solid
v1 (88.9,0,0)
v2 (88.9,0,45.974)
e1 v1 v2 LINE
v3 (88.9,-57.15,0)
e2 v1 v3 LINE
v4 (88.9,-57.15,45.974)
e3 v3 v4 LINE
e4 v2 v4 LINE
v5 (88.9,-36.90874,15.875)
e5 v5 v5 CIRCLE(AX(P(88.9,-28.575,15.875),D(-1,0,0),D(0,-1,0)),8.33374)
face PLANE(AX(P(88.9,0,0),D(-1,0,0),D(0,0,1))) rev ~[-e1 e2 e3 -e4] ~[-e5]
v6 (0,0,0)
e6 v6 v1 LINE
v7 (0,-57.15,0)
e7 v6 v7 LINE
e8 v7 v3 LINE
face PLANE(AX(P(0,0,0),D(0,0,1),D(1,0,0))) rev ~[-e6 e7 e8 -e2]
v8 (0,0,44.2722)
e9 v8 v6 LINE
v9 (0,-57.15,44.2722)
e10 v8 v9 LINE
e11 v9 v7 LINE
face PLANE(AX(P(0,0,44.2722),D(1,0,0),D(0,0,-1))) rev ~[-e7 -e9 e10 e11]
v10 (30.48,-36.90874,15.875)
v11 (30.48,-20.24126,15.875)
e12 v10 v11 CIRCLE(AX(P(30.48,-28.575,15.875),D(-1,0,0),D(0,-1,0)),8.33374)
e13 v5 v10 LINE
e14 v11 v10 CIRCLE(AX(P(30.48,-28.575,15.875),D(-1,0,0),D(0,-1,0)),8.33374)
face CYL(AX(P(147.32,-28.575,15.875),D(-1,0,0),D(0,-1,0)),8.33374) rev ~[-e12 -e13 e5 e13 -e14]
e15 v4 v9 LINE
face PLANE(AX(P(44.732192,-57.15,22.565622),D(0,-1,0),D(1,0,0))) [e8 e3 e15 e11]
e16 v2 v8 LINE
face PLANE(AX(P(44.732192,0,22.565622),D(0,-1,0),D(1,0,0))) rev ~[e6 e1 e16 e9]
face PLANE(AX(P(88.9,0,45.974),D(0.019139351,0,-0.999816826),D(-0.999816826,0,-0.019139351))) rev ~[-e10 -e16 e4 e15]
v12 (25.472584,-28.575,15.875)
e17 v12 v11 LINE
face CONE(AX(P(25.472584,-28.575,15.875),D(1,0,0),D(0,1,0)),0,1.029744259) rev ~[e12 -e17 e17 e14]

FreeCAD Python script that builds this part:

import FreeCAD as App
import Part
import Sketcher
Q = App.Units.Quantity


def add_polygon(sketch, points):
    """Adds a closed chain of lines whose ends are joined by coincident constraints."""
    first, n = sketch.GeometryCount, len(points)
    for a, b in zip(points, points[1:] + points[:1]):
        sketch.addGeometry(Part.LineSegment(App.Vector(*a, 0), App.Vector(*b, 0)), False)
    for i in range(n):
        sketch.addConstraint(Sketcher.Constraint("Coincident", first + i, 2, first + (i + 1) % n, 1))

doc = App.newDocument("Part")
body = doc.addObject("PartDesign::Body", "Body")

# Sketch on XZ plane
sketch1 = body.newObject("Sketcher::SketchObject", "Sketch")
sketch1.AttachmentSupport = (doc.getObject("XZ_Plane"), [""])
sketch1.MapMode = "FlatFace"
add_polygon(sketch1, [(0, 44), (0, 0), (89, 0), (89, 46)])  # lines 0-3
sketch1.addConstraint(Sketcher.Constraint("Vertical", 0))
sketch1.addConstraint(Sketcher.Constraint("Horizontal", 1))
sketch1.addConstraint(Sketcher.Constraint("Vertical", 2))
sketch1.addConstraint(Sketcher.Constraint("Coincident", 0, 2, -1, 1))
sketch1.addConstraint(Sketcher.Constraint("DistanceX", 1, 1, 1, 2, Q("3.5 in")))
sketch1.addConstraint(Sketcher.Constraint("DistanceY", 2, 1, 2, 2, Q("1.81 in")))
sketch1.addConstraint(Sketcher.Constraint("DistanceY", 0, 2, 0, 1, Q("1.743 in")))
pad1 = body.newObject("PartDesign::Pad", "Pad")
pad1.Profile = sketch1
pad1.Length = Q("2.25 in")

# Sketch on YZ plane
sketch2 = body.newObject("Sketcher::SketchObject", "Sketch001")
sketch2.AttachmentSupport = (doc.getObject("YZ_Plane"), [""])
sketch2.MapMode = "FlatFace"
sketch2.AttachmentOffset = App.Placement(App.Vector(0, 0, 3.5 * 25.4), App.Rotation())
sketch2.addGeometry(Part.Circle(App.Vector(-29, 16, 0), App.Vector(0, 0, 1), 8), False)
sketch2.addConstraint(Sketcher.Constraint("Diameter", 0, Q("0.6562 in")))
sketch2.addConstraint(Sketcher.Constraint("DistanceX", 0, 3, -1, 1, Q("1.125 in")))
sketch2.addConstraint(Sketcher.Constraint("DistanceY", -1, 1, 0, 3, Q("0.625 in")))
doc.recompute()
hole = body.newObject("PartDesign::Hole", "Hole")
hole.Profile = sketch2
hole.ThreadType = "None"
hole.Diameter = Q("0.6562 in")
hole.DepthType = "Dimension"
hole.Depth = Q("2.3 in")
hole.DrillPoint = "Angled"
hole.DrillPointAngle = 118

doc.recompute()
